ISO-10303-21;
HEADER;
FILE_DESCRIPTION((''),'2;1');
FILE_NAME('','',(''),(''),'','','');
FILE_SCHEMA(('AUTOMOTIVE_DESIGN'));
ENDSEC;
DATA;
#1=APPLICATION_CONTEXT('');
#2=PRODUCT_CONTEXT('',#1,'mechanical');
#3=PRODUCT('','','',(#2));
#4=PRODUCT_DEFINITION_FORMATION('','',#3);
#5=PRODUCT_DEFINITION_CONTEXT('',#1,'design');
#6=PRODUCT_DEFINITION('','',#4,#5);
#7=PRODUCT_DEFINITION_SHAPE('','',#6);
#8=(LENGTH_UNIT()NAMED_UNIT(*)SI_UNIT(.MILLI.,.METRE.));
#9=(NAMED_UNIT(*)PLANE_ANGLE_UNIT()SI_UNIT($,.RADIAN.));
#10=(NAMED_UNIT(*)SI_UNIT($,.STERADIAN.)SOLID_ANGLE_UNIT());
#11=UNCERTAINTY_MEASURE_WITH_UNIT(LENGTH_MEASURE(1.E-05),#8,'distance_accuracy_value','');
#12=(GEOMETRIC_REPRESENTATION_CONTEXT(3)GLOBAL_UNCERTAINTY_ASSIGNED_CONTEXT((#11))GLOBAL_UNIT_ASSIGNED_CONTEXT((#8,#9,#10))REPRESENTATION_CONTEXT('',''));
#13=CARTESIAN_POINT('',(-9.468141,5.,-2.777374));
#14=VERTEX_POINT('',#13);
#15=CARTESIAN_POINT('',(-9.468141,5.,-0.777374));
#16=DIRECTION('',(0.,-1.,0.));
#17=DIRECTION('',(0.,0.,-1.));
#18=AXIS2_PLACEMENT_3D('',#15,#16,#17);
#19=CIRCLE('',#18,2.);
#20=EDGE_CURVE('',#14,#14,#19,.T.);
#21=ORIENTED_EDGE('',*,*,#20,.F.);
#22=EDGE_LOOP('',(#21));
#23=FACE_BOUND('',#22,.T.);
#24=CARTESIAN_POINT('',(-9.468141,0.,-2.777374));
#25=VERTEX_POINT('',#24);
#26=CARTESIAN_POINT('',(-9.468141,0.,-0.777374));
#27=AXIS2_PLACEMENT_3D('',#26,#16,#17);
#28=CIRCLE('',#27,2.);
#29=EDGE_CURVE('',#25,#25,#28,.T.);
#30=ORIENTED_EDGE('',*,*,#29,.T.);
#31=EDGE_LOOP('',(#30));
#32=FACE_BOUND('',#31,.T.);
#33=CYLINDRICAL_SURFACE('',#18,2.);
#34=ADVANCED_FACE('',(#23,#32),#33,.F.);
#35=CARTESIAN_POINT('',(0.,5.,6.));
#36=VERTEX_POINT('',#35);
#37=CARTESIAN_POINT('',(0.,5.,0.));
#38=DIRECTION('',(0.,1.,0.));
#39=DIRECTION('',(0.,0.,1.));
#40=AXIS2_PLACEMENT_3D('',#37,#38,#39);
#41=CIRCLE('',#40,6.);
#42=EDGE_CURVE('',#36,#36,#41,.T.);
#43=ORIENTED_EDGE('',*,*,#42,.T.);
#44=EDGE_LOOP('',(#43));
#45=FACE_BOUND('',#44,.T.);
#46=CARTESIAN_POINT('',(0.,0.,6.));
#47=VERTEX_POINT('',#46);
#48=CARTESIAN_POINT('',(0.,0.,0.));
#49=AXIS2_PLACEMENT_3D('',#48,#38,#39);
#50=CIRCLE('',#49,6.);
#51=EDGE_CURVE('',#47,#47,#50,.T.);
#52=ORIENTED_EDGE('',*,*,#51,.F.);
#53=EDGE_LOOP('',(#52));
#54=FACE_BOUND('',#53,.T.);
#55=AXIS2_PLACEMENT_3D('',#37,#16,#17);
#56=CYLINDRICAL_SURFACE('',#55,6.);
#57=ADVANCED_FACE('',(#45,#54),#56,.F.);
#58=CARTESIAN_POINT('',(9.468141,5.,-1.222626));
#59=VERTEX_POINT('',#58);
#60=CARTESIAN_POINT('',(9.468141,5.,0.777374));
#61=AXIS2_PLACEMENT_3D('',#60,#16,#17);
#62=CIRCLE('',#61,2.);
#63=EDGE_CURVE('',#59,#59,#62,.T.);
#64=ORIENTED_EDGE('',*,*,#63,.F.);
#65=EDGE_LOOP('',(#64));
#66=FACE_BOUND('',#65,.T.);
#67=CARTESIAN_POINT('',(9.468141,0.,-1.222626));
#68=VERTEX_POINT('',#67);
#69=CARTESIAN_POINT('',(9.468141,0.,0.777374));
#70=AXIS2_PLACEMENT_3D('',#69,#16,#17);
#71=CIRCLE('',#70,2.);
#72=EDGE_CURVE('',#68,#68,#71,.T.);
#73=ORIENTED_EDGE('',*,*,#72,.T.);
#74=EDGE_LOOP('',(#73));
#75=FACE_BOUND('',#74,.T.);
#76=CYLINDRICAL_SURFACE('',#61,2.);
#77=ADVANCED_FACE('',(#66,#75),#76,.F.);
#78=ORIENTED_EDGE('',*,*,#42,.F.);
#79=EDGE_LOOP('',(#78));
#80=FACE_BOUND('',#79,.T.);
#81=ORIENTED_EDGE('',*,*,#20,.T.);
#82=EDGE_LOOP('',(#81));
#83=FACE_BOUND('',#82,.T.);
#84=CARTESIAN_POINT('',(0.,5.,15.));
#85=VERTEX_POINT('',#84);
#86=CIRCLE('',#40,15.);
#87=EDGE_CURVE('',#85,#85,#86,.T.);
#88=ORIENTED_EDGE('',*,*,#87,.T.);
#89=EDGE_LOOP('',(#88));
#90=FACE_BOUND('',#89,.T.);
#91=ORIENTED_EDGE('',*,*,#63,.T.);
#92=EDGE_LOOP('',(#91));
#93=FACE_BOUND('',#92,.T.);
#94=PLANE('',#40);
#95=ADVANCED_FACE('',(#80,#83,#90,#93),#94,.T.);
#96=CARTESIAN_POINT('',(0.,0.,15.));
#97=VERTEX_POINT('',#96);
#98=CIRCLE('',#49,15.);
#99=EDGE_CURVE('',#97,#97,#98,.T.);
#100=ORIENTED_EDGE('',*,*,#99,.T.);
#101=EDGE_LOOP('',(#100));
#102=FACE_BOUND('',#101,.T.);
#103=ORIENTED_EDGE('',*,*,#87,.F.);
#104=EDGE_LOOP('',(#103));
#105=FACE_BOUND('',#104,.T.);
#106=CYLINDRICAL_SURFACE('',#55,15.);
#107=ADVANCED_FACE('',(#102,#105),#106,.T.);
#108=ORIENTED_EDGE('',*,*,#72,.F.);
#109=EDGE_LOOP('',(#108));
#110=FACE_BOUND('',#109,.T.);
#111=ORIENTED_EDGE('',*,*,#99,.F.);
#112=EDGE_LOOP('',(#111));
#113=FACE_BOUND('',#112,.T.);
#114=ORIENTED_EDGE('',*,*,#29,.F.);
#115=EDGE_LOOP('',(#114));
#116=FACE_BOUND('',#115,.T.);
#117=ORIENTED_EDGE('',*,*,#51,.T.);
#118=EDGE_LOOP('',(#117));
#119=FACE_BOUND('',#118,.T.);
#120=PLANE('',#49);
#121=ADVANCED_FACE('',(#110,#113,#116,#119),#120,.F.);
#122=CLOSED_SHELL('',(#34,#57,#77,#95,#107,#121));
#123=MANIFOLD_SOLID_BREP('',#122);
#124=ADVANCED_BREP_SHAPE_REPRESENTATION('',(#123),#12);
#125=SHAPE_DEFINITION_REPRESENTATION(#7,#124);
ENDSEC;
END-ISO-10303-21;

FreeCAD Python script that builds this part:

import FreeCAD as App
import Part
import Sketcher
from FreeCAD import Vector

doc = App.newDocument("Part")
body = doc.addObject("PartDesign::Body", "Body")

# Sketch on XZ plane
sketch1 = doc.addObject("Sketcher::SketchObject", "Sketch")
body.addObject(sketch1)
sketch1.AttachmentSupport = (doc.XZ_Plane, [""])
sketch1.MapMode = "FlatFace"
sketch1.addGeometry([
    Part.Circle(Vector(0, 0, 0), Vector(0, 0, 1), 15),
    Part.Circle(Vector(0, 0, 0), Vector(0, 0, 1), 6),
], False)
sketch1.addConstraint([
    Sketcher.Constraint("Coincident", 0, 3, -1, 1),
    Sketcher.Constraint("Coincident", 1, 3, -1, 1),
    Sketcher.Constraint("Diameter", 0, 30.0),
    Sketcher.Constraint("Diameter", 1, 12.0),
])
pad1 = doc.addObject("PartDesign::Pad", "Pad")
body.addObject(pad1)
pad1.Profile = sketch1
pad1.Length = 5
pad1.Reversed = True

# Sketch on XZ plane
sketch2 = doc.addObject("Sketcher::SketchObject", "Sketch001")
body.addObject(sketch2)
sketch2.AttachmentSupport = (doc.XZ_Plane, [""])
sketch2.MapMode = "FlatFace"
sketch2.addGeometry([
    Part.Circle(Vector(-9.5, -0.8, 0), Vector(0, 0, 1), 2),
    Part.Circle(Vector(9.5, 0.8, 0), Vector(0, 0, 1), 2),
], False)
sketch2.addConstraint([
    Sketcher.Constraint("Equal", 0, 1),
    Sketcher.Constraint("Symmetric", 0, 3, 1, 3, -1, 1),
    Sketcher.Constraint("Diameter", 0, 4.0),
    Sketcher.Constraint("DistanceX", 0, 3, -1, 1, 9.468141),
    Sketcher.Constraint("DistanceY", 0, 3, -1, 1, 0.777374),
])
pocket1 = doc.addObject("PartDesign::Pocket", "Pocket")
body.addObject(pocket1)
pocket1.Profile = sketch2
pocket1.Type = "ThroughAll"

doc.recompute()
